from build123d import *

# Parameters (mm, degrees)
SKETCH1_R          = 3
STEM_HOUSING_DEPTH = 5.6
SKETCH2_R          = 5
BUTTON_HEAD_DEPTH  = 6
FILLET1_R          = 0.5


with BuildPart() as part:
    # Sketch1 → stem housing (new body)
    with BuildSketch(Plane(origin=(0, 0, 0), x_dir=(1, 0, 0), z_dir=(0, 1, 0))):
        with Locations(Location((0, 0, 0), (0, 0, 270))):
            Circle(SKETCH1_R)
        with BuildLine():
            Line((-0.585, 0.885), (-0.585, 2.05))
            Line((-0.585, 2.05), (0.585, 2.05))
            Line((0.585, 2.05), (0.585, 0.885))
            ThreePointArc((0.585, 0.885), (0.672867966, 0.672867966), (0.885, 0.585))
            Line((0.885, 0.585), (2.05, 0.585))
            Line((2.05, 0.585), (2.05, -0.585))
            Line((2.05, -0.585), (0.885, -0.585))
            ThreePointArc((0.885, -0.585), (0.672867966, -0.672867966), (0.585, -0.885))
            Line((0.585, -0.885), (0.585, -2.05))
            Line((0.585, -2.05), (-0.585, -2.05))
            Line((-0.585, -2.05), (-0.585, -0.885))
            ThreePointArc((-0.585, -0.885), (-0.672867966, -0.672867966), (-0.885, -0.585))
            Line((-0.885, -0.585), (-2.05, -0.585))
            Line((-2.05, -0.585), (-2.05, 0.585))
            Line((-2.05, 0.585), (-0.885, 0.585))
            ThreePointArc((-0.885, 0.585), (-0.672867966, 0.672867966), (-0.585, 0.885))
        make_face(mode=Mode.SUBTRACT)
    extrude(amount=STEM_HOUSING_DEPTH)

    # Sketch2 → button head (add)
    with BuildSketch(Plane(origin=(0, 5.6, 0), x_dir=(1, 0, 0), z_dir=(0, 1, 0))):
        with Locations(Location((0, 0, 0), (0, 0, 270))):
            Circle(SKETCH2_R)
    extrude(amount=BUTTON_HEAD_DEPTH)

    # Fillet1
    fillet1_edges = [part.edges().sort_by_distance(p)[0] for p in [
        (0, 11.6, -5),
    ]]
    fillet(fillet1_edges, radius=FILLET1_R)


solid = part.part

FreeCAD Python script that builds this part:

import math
import FreeCAD as App
import Part
import Sketcher

V = App.Vector


def edges_at(feature, points):
    """Names of the edges that pass closest to the given points."""
    edges = feature.Shape.Edges
    near = lambda p: min(range(len(edges)), key=lambda i: edges[i].distToShape(Part.Vertex(*p))[0])
    return sorted({f"Edge{near(p) + 1}" for p in points})

doc = App.newDocument("Part")
body = doc.addObject("PartDesign::Body", "Body")

sketch1 = body.newObject("Sketcher::SketchObject", "Sketch")
sketch1.AttachmentSupport = (doc.getObject("XZ_Plane"), [""])
sketch1.MapMode = "FlatFace"
sketch1.addGeometry([
    Part.Circle(V(0, 0, 0), V(0, 0, 1), 3),
    Part.ArcOfCircle(Part.Circle(V(-0.89, -0.89, 0), V(0, 0, 1), 0.3), math.radians(0), math.radians(90)),
    Part.LineSegment(V(-0.58, -0.89, 0), V(-0.58, -2.05, 0)),
    Part.LineSegment(V(-0.58, -2.05, 0), V(0.58, -2.05, 0)),
    Part.LineSegment(V(0.58, -2.05, 0), V(0.58, -0.89, 0)),
    Part.ArcOfCircle(Part.Circle(V(0.89, -0.89, 0), V(0, 0, 1), 0.3), math.radians(90), math.radians(180)),
    Part.LineSegment(V(0.89, -0.58, 0), V(2.05, -0.58, 0)),
    Part.LineSegment(V(2.05, -0.58, 0), V(2.05, 0.58, 0)),
    Part.LineSegment(V(2.05, 0.58, 0), V(0.89, 0.58, 0)),
    Part.ArcOfCircle(Part.Circle(V(0.89, 0.89, 0), V(0, 0, 1), 0.3), math.radians(-180), math.radians(-90)),
    Part.LineSegment(V(0.58, 0.89, 0), V(0.58, 2.05, 0)),
    Part.LineSegment(V(0.58, 2.05, 0), V(-0.58, 2.05, 0)),
    Part.LineSegment(V(-0.58, 2.05, 0), V(-0.58, 0.89, 0)),
    Part.ArcOfCircle(Part.Circle(V(-0.89, 0.89, 0), V(0, 0, 1), 0.3), math.radians(-90), math.radians(0)),
    Part.LineSegment(V(-0.89, 0.58, 0), V(-2.05, 0.58, 0)),
    Part.LineSegment(V(-2.05, 0.58, 0), V(-2.05, -0.58, 0)),
    Part.LineSegment(V(-2.05, -0.58, 0), V(-0.89, -0.58, 0)),
], False)
sketch1.addConstraint([
    Sketcher.Constraint("Tangent", 1, 1, 2, 1),
    Sketcher.Constraint("Coincident", 2, 2, 3, 1),
    Sketcher.Constraint("Coincident", 3, 2, 4, 1),
    Sketcher.Constraint("Tangent", 4, 2, 5, 2),
    Sketcher.Constraint("Tangent", 5, 1, 6, 1),
    Sketcher.Constraint("Coincident", 6, 2, 7, 1),
    Sketcher.Constraint("Coincident", 7, 2, 8, 1),
    Sketcher.Constraint("Tangent", 8, 2, 9, 2),
    Sketcher.Constraint("Tangent", 9, 1, 10, 1),
    Sketcher.Constraint("Coincident", 10, 2, 11, 1),
    Sketcher.Constraint("Coincident", 11, 2, 12, 1),
    Sketcher.Constraint("Tangent", 12, 2, 13, 2),
    Sketcher.Constraint("Tangent", 13, 1, 14, 1),
    Sketcher.Constraint("Coincident", 14, 2, 15, 1),
    Sketcher.Constraint("Coincident", 15, 2, 16, 1),
    Sketcher.Constraint("Tangent", 16, 2, 1, 2),
    Sketcher.Constraint("Vertical", 2),
    Sketcher.Constraint("Horizontal", 3),
    Sketcher.Constraint("Vertical", 4),
    Sketcher.Constraint("Horizontal", 6),
    Sketcher.Constraint("Vertical", 7),
    Sketcher.Constraint("Horizontal", 8),
    Sketcher.Constraint("Vertical", 10),
    Sketcher.Constraint("Horizontal", 11),
    Sketcher.Constraint("Vertical", 12),
    Sketcher.Constraint("Horizontal", 14),
    Sketcher.Constraint("Vertical", 15),
    Sketcher.Constraint("Horizontal", 16),
    Sketcher.Constraint("Coincident", 0, 3, -1, 1),
    Sketcher.Constraint("Equal", 1, 5),
    Sketcher.Constraint("Equal", 5, 9),
    Sketcher.Constraint("Equal", 9, 13),
    Sketcher.Constraint("Symmetric", 1, 3, 9, 3, -1, 1),
    Sketcher.Constraint("Symmetric", 5, 3, 13, 3, -1, 1),
    Sketcher.Constraint("Symmetric", 1, 3, 5, 3, -2),
    Sketcher.Constraint("Equal", 8, 14),
    Sketcher.Constraint("Equal", 16, 2),
    Sketcher.Constraint("Equal", 11, 7),
    Sketcher.Constraint("Equal", 4, 10),
    Sketcher.Constraint("Diameter", 0, 6.0),
    Sketcher.Constraint("Radius", 1, 0.3),
    Sketcher.Constraint("DistanceX", 3, 1, 3, 2, 1.17),
    Sketcher.Constraint("DistanceX", 6, 1, 6, 2, 1.165),
])
pad1 = body.newObject("PartDesign::Pad", "Pad")
pad1.Profile = sketch1
pad1.Length = 5.6
pad1.Reversed = True

sketch2 = body.newObject("Sketcher::SketchObject", "Sketch001")
sketch2.AttachmentSupport = (doc.getObject("XZ_Plane"), [""])
sketch2.MapMode = "FlatFace"
sketch2.AttachmentOffset = App.Placement(V(0, 0, -5.6), App.Rotation())
sketch2.addGeometry(Part.Circle(V(0, 0, 0), V(0, 0, 1), 5), False)
sketch2.addConstraint([
    Sketcher.Constraint("Coincident", 0, 3, -1, 1),
    Sketcher.Constraint("Diameter", 0, 10.0),
])
pad2 = body.newObject("PartDesign::Pad", "Pad001")
pad2.Profile = sketch2
pad2.Length = 6
pad2.Reversed = True
doc.recompute()

fillet = body.newObject("PartDesign::Fillet", "Fillet")
fillet.Base = (pad2, edges_at(pad2, [(0, 11.6, -5)]))
fillet.Radius = 0.5

doc.recompute()
